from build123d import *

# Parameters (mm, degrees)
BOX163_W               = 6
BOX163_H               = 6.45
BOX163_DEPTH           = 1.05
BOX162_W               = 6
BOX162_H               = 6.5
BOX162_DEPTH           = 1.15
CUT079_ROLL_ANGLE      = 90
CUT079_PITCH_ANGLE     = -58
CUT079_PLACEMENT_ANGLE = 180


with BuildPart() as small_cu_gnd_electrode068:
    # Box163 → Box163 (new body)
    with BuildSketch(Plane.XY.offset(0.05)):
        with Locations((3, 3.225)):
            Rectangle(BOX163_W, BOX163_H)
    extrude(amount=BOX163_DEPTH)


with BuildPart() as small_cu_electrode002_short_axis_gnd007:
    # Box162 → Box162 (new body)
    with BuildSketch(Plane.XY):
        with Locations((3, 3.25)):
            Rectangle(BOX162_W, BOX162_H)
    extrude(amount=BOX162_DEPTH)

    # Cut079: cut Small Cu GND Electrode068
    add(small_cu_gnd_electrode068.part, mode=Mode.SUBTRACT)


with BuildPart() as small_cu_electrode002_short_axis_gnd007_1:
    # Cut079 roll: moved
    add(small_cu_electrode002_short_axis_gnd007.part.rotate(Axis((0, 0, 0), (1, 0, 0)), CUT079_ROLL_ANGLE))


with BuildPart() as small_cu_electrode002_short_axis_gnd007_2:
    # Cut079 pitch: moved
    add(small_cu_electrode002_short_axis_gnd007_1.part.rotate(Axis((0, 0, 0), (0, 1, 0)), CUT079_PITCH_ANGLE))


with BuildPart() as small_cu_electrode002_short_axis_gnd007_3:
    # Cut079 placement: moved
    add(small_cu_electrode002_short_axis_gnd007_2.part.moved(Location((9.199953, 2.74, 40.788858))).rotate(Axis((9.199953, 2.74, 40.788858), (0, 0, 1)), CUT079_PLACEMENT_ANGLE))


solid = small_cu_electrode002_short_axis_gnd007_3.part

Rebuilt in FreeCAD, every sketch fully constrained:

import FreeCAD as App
import Part
import Sketcher

V = App.Vector
Q = App.Units.Quantity


def add_polygon(sketch, points):
    """Adds a closed chain of lines whose ends are joined by coincident constraints."""
    first, n = sketch.GeometryCount, len(points)
    for a, b in zip(points, points[1:] + points[:1]):
        sketch.addGeometry(Part.LineSegment(App.Vector(*a, 0), App.Vector(*b, 0)), False)
    for i in range(n):
        sketch.addConstraint(Sketcher.Constraint("Coincident", first + i, 2, first + (i + 1) % n, 1))

doc = App.newDocument("Part")
body = doc.addObject("PartDesign::Body", "Body")

# Sketch on XY plane
sketch1 = doc.addObject("Sketcher::SketchObject", "Sketch")
body.addObject(sketch1)
sketch1.AttachmentSupport = (doc.XY_Plane, [""])
sketch1.MapMode = "FlatFace"
sketch1.AttachmentOffset = App.Placement(V(0, 0, 0.05), App.Rotation())
add_polygon(sketch1, [(0, 6), (0, 0), (6, 0), (6, 6)])  # lines 0-3
sketch1.addConstraint([
    Sketcher.Constraint("Vertical", 0),
    Sketcher.Constraint("Horizontal", 1),
    Sketcher.Constraint("Vertical", 2),
    Sketcher.Constraint("Horizontal", 3),
    Sketcher.Constraint("Coincident", 0, 2, -1, 1),
    Sketcher.Constraint("DistanceX", 1, 1, 1, 2, Q("6 mm")),
    Sketcher.Constraint("DistanceY", 0, 2, 0, 1, Q("6.45 mm")),
])
pad1 = doc.addObject("PartDesign::Pad", "Pad")
body.addObject(pad1)
pad1.Profile = sketch1
pad1.Length = 1.05
body2 = doc.addObject("PartDesign::Body", "Body001")

# Sketch on XY plane
sketch2 = doc.addObject("Sketcher::SketchObject", "Sketch001")
body2.addObject(sketch2)
sketch2.AttachmentSupport = (doc.getObject("XY_Plane001"), [""])
sketch2.MapMode = "FlatFace"
add_polygon(sketch2, [(0, 6), (0, 0), (6, 0), (6, 6)])  # lines 0-3
sketch2.addConstraint([
    Sketcher.Constraint("Vertical", 0),
    Sketcher.Constraint("Horizontal", 1),
    Sketcher.Constraint("Vertical", 2),
    Sketcher.Constraint("Horizontal", 3),
    Sketcher.Constraint("Coincident", 0, 2, -1, 1),
    Sketcher.Constraint("DistanceX", 1, 1, 1, 2, Q("6 mm")),
    Sketcher.Constraint("DistanceY", 0, 2, 0, 1, Q("6.5 mm")),
])
pad2 = doc.addObject("PartDesign::Pad", "Pad001")
body2.addObject(pad2)
pad2.Profile = sketch2
pad2.Length = 1.15
doc.recompute()

boolean = doc.addObject("PartDesign::Boolean", "Boolean")
body2.addObject(boolean)
boolean.Type = "Cut"
boolean.addObjects([body])
body3 = doc.addObject("PartDesign::Body", "Body002")
doc.recompute()

body2.Placement = App.Placement(V(0, 0, 0), App.Rotation(V(1, 0, 0), 90))
boolean2 = doc.addObject("PartDesign::Boolean", "Boolean001")
body3.addObject(boolean2)
boolean2.Type = "Fuse"
boolean2.addObjects([body2])
body4 = doc.addObject("PartDesign::Body", "Body003")
doc.recompute()

body3.Placement = App.Placement(V(0, 0, 0), App.Rotation(V(0, 1, 0), 302))
boolean3 = doc.addObject("PartDesign::Boolean", "Boolean002")
body4.addObject(boolean3)
boolean3.Type = "Fuse"
boolean3.addObjects([body3])
body5 = doc.addObject("PartDesign::Body", "Body004")
doc.recompute()

body4.Placement = App.Placement(V(9.199953, 2.74, 40.788858), App.Rotation(V(0, 0, 1), 180))
boolean4 = doc.addObject("PartDesign::Boolean", "Boolean003")
body5.addObject(boolean4)
boolean4.Type = "Fuse"
boolean4.addObjects([body4])

doc.recompute()
